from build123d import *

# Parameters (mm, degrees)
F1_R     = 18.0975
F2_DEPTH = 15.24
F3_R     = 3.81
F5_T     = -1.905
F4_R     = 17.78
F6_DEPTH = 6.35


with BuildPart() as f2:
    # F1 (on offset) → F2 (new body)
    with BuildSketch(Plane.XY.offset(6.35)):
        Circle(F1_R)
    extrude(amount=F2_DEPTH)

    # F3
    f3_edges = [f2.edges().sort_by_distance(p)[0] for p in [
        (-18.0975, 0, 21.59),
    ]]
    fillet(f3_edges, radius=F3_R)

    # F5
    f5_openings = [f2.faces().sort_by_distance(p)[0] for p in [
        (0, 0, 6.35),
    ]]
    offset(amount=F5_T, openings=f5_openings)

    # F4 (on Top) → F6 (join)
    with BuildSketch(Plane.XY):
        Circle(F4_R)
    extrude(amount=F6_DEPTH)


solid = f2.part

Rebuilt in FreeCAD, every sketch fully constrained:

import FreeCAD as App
import Part
import Sketcher
from FreeCAD import Vector
Q = App.Units.Quantity


def edges_at(feature, points):
    """Names of the edges that pass closest to the given points."""
    edges = feature.Shape.Edges
    near = lambda p: min(range(len(edges)), key=lambda i: edges[i].distToShape(Part.Vertex(*p))[0])
    return sorted({f"Edge{near(p) + 1}" for p in points})


def faces_at(feature, points):
    """Names of the faces that lie closest to the given points."""
    faces = feature.Shape.Faces
    near = lambda p: min(range(len(faces)), key=lambda i: faces[i].distToShape(Part.Vertex(*p))[0])
    return sorted({f"Face{near(p) + 1}" for p in points})

doc = App.newDocument("Part")
body = doc.addObject("PartDesign::Body", "Body")

sketch1 = doc.addObject("Sketcher::SketchObject", "Sketch")
body.addObject(sketch1)
sketch1.AttachmentSupport = (doc.XY_Plane, [""])
sketch1.MapMode = "FlatFace"
sketch1.AttachmentOffset = App.Placement(Vector(0, 0, 0.25 * 25.4), App.Rotation())
sketch1.addGeometry(Part.Circle(Vector(0, 0, 0), Vector(0, 0, 1), 18), False)
sketch1.addConstraint([
    Sketcher.Constraint("Coincident", 0, 3, -1, 1),
    Sketcher.Constraint("Diameter", 0, Q("1.425 in")),
])
pad1 = doc.addObject("PartDesign::Pad", "Pad")
body.addObject(pad1)
pad1.Profile = sketch1
pad1.Length = Q("0.6 in")
doc.recompute()

fillet = doc.addObject("PartDesign::Fillet", "Fillet")
body.addObject(fillet)
fillet.Base = (pad1, edges_at(pad1, [(-18.098, 0, 21.59)]))
fillet.Radius = Q("0.15 in")
doc.recompute()

thickness = doc.addObject("PartDesign::Thickness", "Thickness")
body.addObject(thickness)
thickness.Base = (fillet, faces_at(fillet, [(0, 0, 6.35)]))
thickness.Value = Q("0.075 in")
thickness.Reversed = True
thickness.Join = "Arc"

sketch2 = doc.addObject("Sketcher::SketchObject", "Sketch001")
body.addObject(sketch2)
sketch2.AttachmentSupport = (doc.XY_Plane, [""])
sketch2.MapMode = "FlatFace"
sketch2.addGeometry(Part.Circle(Vector(0, 0, 0), Vector(0, 0, 1), 18), False)
sketch2.addConstraint([
    Sketcher.Constraint("Coincident", 0, 3, -1, 1),
    Sketcher.Constraint("Diameter", 0, Q("1.4 in")),
])
pad2 = doc.addObject("PartDesign::Pad", "Pad001")
body.addObject(pad2)
pad2.Profile = sketch2
pad2.Length = Q("0.25 in")

doc.recompute()
